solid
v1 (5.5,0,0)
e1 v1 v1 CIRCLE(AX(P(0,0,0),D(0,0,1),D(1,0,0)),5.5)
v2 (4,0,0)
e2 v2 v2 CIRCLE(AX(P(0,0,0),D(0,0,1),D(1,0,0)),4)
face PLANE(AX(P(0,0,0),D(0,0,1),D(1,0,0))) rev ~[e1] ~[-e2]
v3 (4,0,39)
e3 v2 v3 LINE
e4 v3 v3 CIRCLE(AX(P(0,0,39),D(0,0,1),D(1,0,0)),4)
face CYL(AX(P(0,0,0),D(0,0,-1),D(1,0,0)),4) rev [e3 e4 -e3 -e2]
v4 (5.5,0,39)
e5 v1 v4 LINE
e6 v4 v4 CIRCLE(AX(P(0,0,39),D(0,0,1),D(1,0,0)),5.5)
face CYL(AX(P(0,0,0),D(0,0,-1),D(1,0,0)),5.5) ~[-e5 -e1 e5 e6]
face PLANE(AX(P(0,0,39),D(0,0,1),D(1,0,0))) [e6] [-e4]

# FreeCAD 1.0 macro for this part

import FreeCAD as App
import Part
import Sketcher
from FreeCAD import Vector
Q = App.Units.Quantity

doc = App.newDocument("Part")
body = doc.addObject("PartDesign::Body", "Body")

sketch1 = doc.addObject("Sketcher::SketchObject", "Sketch")
body.addObject(sketch1)
sketch1.AttachmentSupport = (doc.XY_Plane, [""])
sketch1.MapMode = "FlatFace"
sketch1.addGeometry([
    Part.Circle(Vector(0, 0, 0), Vector(0, 0, 1), 5.5),
    Part.Circle(Vector(0, 0, 0), Vector(0, 0, 1), 4),
], False)
sketch1.addConstraint([
    Sketcher.Constraint("Coincident", 0, 3, -1, 1),
    Sketcher.Constraint("Coincident", 1, 3, -1, 1),
    Sketcher.Constraint("Diameter", 0, Q("11 mm")),
    Sketcher.Constraint("Diameter", 1, Q("8 mm")),
])
pad1 = doc.addObject("PartDesign::Pad", "Pad")
body.addObject(pad1)
pad1.Profile = sketch1
pad1.Length = 39

doc.recompute()
